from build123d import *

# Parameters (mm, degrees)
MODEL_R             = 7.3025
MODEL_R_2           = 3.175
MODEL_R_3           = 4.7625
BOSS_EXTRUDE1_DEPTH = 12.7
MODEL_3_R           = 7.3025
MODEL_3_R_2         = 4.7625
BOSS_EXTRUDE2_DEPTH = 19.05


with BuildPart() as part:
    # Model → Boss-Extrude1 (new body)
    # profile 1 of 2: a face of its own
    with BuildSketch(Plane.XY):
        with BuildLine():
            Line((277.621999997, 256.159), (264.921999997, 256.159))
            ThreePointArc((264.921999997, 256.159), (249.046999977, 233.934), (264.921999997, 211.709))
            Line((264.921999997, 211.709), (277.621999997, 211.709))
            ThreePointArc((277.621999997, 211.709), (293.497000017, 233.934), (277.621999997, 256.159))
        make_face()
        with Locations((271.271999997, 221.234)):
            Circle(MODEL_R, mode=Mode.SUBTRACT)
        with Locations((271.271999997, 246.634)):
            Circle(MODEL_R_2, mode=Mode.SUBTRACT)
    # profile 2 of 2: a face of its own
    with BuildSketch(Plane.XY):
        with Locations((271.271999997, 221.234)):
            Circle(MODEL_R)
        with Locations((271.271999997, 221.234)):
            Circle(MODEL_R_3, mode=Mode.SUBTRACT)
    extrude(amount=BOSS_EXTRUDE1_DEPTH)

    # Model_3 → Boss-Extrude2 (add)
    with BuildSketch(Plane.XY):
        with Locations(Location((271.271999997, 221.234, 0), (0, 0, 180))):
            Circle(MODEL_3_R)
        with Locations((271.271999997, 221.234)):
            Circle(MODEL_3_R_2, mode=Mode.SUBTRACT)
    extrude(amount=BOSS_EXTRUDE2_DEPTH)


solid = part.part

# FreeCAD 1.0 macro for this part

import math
import FreeCAD as App
import Part
import Sketcher
from FreeCAD import Vector
Q = App.Units.Quantity

doc = App.newDocument("Part")
body = doc.addObject("PartDesign::Body", "Body")

sketch1 = doc.addObject("Sketcher::SketchObject", "Sketch")
body.addObject(sketch1)
sketch1.AttachmentSupport = (doc.XY_Plane, [""])
sketch1.MapMode = "FlatFace"
sketch1.addGeometry(Part.LineSegment(Vector(277.622, 256.159, 0), Vector(264.922, 256.159, 0)), False)
sketch1.addGeometry(Part.ArcOfCircle(Part.Circle(Vector(272.542, 233.934, 0), Vector(0, 0, 1), 23.495), math.radians(108.924644), math.radians(251.075356)), False)
sketch1.addGeometry(Part.LineSegment(Vector(264.922, 211.709, 0), Vector(277.622, 211.709, 0)), False)
sketch1.addGeometry(Part.ArcOfCircle(Part.Circle(Vector(270.002, 233.934, 0), Vector(0, 0, 1), 23.495), math.radians(-71.075356), math.radians(71.075356)), False)
sketch1.addGeometry(Part.Circle(Vector(271.272, 246.634, 0), Vector(0, 0, 1), 3.175), False)
sketch1.addGeometry(Part.Circle(Vector(271.272, 221.234, 0), Vector(0, 0, 1), 4.7625), False)
sketch1.addConstraint(Sketcher.Constraint("Coincident", 0, 2, 1, 1))
sketch1.addConstraint(Sketcher.Constraint("Coincident", 1, 2, 2, 1))
sketch1.addConstraint(Sketcher.Constraint("Coincident", 2, 2, 3, 1))
sketch1.addConstraint(Sketcher.Constraint("Coincident", 3, 2, 0, 1))
sketch1.addConstraint(Sketcher.Constraint("Horizontal", 0))
sketch1.addConstraint(Sketcher.Constraint("Horizontal", 2))
sketch1.addConstraint(Sketcher.Constraint("Equal", 1, 3))
sketch1.addConstraint(Sketcher.Constraint("Horizontal", 1, 3, 3, 3))
sketch1.addConstraint(Sketcher.Constraint("Vertical", 4, 3, 5, 3))
sketch1.addConstraint(Sketcher.Constraint("Vertical", 0, 2, 1, 2))
sketch1.addConstraint(Sketcher.Constraint("Diameter", 4, Q("0.25 in")))
sketch1.addConstraint(Sketcher.Constraint("Diameter", 5, Q("0.375 in")))
sketch1.addConstraint(Sketcher.Constraint("DistanceX", 0, 2, 0, 1, Q("0.5 in")))
sketch1.addConstraint(Sketcher.Constraint("Radius", 1, Q("0.925 in")))
sketch1.addConstraint(Sketcher.Constraint("DistanceY", 5, 3, 4, 3, Q("1 in")))
sketch1.addConstraint(Sketcher.Constraint("DistanceX", 3, 3, 1, 3, Q("0.1 in")))
sketch1.addConstraint(Sketcher.Constraint("DistanceY", 1, 3, 4, 3, Q("0.5 in")))
sketch1.addConstraint(Sketcher.Constraint("DistanceX", -1, 1, 1, 3, Q("10.73 in")))
sketch1.addConstraint(Sketcher.Constraint("DistanceY", -1, 1, 1, 3, Q("9.21 in")))
sketch1.addConstraint(Sketcher.Constraint("DistanceX", -1, 1, 4, 3, Q("10.68 in")))
pad1 = doc.addObject("PartDesign::Pad", "Pad")
body.addObject(pad1)
pad1.Profile = sketch1
pad1.Length = Q("0.5 in")

sketch2 = doc.addObject("Sketcher::SketchObject", "Sketch001")
body.addObject(sketch2)
sketch2.AttachmentSupport = (doc.XY_Plane, [""])
sketch2.MapMode = "FlatFace"
sketch2.addGeometry(Part.Circle(Vector(271.272, 221.234, 0), Vector(0, 0, 1), 7.3025), False)
sketch2.addGeometry(Part.Circle(Vector(271.272, 221.234, 0), Vector(0, 0, 1), 4.7625), False)
sketch2.addConstraint(Sketcher.Constraint("Coincident", 1, 3, 0, 3))
sketch2.addConstraint(Sketcher.Constraint("Diameter", 0, Q("0.575 in")))
sketch2.addConstraint(Sketcher.Constraint("Diameter", 1, Q("0.375 in")))
sketch2.addConstraint(Sketcher.Constraint("DistanceX", -1, 1, 0, 3, Q("10.68 in")))
sketch2.addConstraint(Sketcher.Constraint("DistanceY", -1, 1, 0, 3, Q("8.71 in")))
pad2 = doc.addObject("PartDesign::Pad", "Pad001")
body.addObject(pad2)
pad2.Profile = sketch2
pad2.Length = Q("0.75 in")

doc.recompute()
